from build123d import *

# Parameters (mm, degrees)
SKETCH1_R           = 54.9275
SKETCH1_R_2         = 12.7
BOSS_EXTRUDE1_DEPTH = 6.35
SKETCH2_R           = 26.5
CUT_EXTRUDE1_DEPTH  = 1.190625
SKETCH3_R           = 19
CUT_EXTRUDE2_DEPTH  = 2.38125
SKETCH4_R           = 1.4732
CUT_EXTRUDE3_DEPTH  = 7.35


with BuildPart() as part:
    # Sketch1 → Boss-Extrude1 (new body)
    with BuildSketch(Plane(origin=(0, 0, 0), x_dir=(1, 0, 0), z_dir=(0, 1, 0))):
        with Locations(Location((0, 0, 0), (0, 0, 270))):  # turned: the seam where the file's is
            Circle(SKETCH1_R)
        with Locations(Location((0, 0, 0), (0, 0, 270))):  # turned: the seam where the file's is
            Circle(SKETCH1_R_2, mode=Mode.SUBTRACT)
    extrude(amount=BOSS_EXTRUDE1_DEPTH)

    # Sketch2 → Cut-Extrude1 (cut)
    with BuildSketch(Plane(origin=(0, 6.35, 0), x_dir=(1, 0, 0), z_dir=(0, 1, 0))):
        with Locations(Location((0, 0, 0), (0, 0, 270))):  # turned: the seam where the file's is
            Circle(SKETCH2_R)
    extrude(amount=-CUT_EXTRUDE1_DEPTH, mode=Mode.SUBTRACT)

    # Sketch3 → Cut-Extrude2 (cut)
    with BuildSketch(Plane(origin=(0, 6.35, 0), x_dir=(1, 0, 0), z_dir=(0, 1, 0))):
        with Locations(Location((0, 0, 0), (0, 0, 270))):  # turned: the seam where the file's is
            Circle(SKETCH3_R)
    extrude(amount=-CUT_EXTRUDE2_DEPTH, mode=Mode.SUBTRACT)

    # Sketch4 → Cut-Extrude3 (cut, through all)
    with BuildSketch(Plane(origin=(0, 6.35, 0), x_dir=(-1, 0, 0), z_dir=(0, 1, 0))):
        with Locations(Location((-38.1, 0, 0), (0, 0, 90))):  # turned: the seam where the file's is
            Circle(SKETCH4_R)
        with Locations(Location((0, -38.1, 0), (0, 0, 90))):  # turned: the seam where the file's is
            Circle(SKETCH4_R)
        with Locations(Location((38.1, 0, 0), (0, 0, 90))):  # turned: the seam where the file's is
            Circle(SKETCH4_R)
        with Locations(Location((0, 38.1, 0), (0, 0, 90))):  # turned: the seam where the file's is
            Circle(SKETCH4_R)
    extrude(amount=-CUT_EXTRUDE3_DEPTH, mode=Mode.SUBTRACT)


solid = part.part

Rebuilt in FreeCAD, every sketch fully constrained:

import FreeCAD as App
import Part
import Sketcher
Q = App.Units.Quantity

doc = App.newDocument("Part")
body = doc.addObject("PartDesign::Body", "Body")

# Sketch on XZ plane
sketch1 = body.newObject("Sketcher::SketchObject", "Sketch")
sketch1.AttachmentSupport = (doc.getObject("XZ_Plane"), [""])
sketch1.MapMode = "FlatFace"
sketch1.addGeometry([
    Part.Circle(App.Vector(0, 0, 0), App.Vector(0, 0, 1), 55),
    Part.Circle(App.Vector(0, 0, 0), App.Vector(0, 0, 1), 13),
], False)
sketch1.addConstraint([
    Sketcher.Constraint("Coincident", 0, 3, -1, 1),
    Sketcher.Constraint("Coincident", 1, 3, -1, 1),
    Sketcher.Constraint("Diameter", 1, Q("1 in")),
    Sketcher.Constraint("Diameter", 0, Q("4.325 in")),
])
pad1 = body.newObject("PartDesign::Pad", "Pad")
pad1.Profile = sketch1
pad1.Length = Q("0.25 in")
pad1.Reversed = True

# Sketch on XZ plane
sketch2 = body.newObject("Sketcher::SketchObject", "Sketch001")
sketch2.AttachmentSupport = (doc.getObject("XZ_Plane"), [""])
sketch2.MapMode = "FlatFace"
sketch2.AttachmentOffset = App.Placement(App.Vector(0, 0, -0.25 * 25.4), App.Rotation())
sketch2.addGeometry(Part.Circle(App.Vector(0, 0, 0), App.Vector(0, 0, 1), 26), False)
sketch2.addConstraint([
    Sketcher.Constraint("Coincident", 0, 3, -1, 1),
    Sketcher.Constraint("Diameter", 0, 53.0),
])
pocket1 = body.newObject("PartDesign::Pocket", "Pocket")
pocket1.Profile = sketch2
pocket1.Length = Q("0.046875 in")
pocket1.Reversed = True

# Sketch on XZ plane
sketch3 = body.newObject("Sketcher::SketchObject", "Sketch002")
sketch3.AttachmentSupport = (doc.getObject("XZ_Plane"), [""])
sketch3.MapMode = "FlatFace"
sketch3.AttachmentOffset = App.Placement(App.Vector(0, 0, -0.25 * 25.4), App.Rotation())
sketch3.addGeometry(Part.Circle(App.Vector(0, 0, 0), App.Vector(0, 0, 1), 19), False)
sketch3.addConstraint([
    Sketcher.Constraint("Coincident", 0, 3, -1, 1),
    Sketcher.Constraint("Diameter", 0, 38.0),
])
pocket2 = body.newObject("PartDesign::Pocket", "Pocket001")
pocket2.Profile = sketch3
pocket2.Length = Q("0.09375 in")
pocket2.Reversed = True

# Sketch on XZ plane
sketch4 = body.newObject("Sketcher::SketchObject", "Sketch003")
sketch4.AttachmentSupport = (doc.getObject("XZ_Plane"), [""])
sketch4.MapMode = "FlatFace"
sketch4.AttachmentOffset = App.Placement(App.Vector(0, 0, -0.25 * 25.4), App.Rotation())
sketch4.addGeometry([
    Part.Circle(App.Vector(38.1, 0, 0), App.Vector(0, 0, 1), 1.5),
    Part.Circle(App.Vector(0, -38.1, 0), App.Vector(0, 0, 1), 1.5),
    Part.Circle(App.Vector(-38.1, 0, 0), App.Vector(0, 0, 1), 1.5),
    Part.Circle(App.Vector(0, 38.1, 0), App.Vector(0, 0, 1), 1.5),
], False)
sketch4.addConstraint([
    Sketcher.Constraint("Equal", 0, 1),
    Sketcher.Constraint("Equal", 1, 2),
    Sketcher.Constraint("Equal", 2, 3),
    Sketcher.Constraint("Symmetric", 0, 3, 2, 3, -1, 1),
    Sketcher.Constraint("Symmetric", 1, 3, 3, 3, -1, 1),
    Sketcher.Constraint("PointOnObject", 0, 3, -1),
    Sketcher.Constraint("PointOnObject", 1, 3, -2),
    Sketcher.Constraint("Diameter", 0, Q("0.116 in")),
    Sketcher.Constraint("DistanceX", 2, 3, 0, 3, Q("3 in")),
    Sketcher.Constraint("DistanceY", 1, 3, 3, 3, Q("3 in")),
])
pocket3 = body.newObject("PartDesign::Pocket", "Pocket002")
pocket3.Profile = sketch4
pocket3.Type = "ThroughAll"
pocket3.Reversed = True

doc.recompute()
